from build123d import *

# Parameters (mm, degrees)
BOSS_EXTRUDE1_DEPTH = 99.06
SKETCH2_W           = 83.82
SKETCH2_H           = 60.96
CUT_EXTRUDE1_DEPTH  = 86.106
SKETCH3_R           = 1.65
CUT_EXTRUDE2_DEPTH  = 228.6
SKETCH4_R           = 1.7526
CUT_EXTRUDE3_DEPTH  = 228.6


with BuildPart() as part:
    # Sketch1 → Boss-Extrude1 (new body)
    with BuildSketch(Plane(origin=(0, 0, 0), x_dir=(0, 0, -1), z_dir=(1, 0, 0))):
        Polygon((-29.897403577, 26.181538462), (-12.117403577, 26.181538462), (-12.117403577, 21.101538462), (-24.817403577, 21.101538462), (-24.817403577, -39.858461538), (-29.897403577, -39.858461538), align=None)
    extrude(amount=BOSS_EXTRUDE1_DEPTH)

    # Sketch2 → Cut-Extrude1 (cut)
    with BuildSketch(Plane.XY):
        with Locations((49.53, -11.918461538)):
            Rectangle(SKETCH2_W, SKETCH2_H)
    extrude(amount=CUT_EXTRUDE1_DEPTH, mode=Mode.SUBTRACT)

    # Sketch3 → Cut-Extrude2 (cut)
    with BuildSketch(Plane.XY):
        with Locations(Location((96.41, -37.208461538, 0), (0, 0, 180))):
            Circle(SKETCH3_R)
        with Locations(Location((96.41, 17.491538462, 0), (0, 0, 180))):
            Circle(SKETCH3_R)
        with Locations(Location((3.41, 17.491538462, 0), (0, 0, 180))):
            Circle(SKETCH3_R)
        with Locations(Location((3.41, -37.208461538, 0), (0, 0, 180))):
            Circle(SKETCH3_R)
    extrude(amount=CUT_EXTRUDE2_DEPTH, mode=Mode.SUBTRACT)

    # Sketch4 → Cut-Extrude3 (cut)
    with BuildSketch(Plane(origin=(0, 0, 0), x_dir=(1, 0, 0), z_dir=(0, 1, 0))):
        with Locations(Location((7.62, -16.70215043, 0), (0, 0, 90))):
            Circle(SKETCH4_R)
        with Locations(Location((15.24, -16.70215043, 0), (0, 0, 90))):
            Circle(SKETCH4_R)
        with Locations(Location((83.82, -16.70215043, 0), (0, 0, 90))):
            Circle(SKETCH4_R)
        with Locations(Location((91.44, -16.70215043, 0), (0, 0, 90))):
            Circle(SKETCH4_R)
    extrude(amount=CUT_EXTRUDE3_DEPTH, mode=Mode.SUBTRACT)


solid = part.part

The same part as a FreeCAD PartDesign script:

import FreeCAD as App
import Part
import Sketcher
from FreeCAD import Vector
Q = App.Units.Quantity


def add_polygon(sketch, points):
    """Adds a closed chain of lines whose ends are joined by coincident constraints."""
    first, n = sketch.GeometryCount, len(points)
    for a, b in zip(points, points[1:] + points[:1]):
        sketch.addGeometry(Part.LineSegment(App.Vector(*a, 0), App.Vector(*b, 0)), False)
    for i in range(n):
        sketch.addConstraint(Sketcher.Constraint("Coincident", first + i, 2, first + (i + 1) % n, 1))

doc = App.newDocument("Part")
body = doc.addObject("PartDesign::Body", "Body")

sketch1 = body.newObject("Sketcher::SketchObject", "Sketch")
sketch1.AttachmentSupport = (doc.getObject("YZ_Plane"), [""])
sketch1.MapMode = "FlatFace"
add_polygon(sketch1, [(26, 12), (26, 30), (-40, 30), (-40, 25), (21, 25), (21, 12)])
sketch1.addConstraint([
    Sketcher.Constraint("Vertical", 0),
    Sketcher.Constraint("Horizontal", 1),
    Sketcher.Constraint("Vertical", 2),
    Sketcher.Constraint("Horizontal", 3),
    Sketcher.Constraint("Vertical", 4),
    Sketcher.Constraint("Horizontal", 5),
    Sketcher.Constraint("Equal", 5, 2),
    Sketcher.Constraint("DistanceX", 1, 2, 1, 1, Q("2.6 in")),
    Sketcher.Constraint("DistanceX", 3, 1, 3, 2, Q("2.4 in")),
    Sketcher.Constraint("DistanceY", 0, 1, 0, 2, Q("0.7 in")),
    Sketcher.Constraint("DistanceX", -1, 1, 0, 2, 26.181538),
    Sketcher.Constraint("DistanceY", -1, 1, 0, 2, 29.897404),
])
pad1 = body.newObject("PartDesign::Pad", "Pad")
pad1.Profile = sketch1
pad1.Length = Q("3.9 in")

sketch2 = body.newObject("Sketcher::SketchObject", "Sketch001")
sketch2.AttachmentSupport = (doc.getObject("XY_Plane"), [""])
sketch2.MapMode = "FlatFace"
add_polygon(sketch2, [(8, 19), (8, -42), (91, -42), (91, 19)])
sketch2.addConstraint([
    Sketcher.Constraint("Vertical", 0),
    Sketcher.Constraint("Horizontal", 1),
    Sketcher.Constraint("Vertical", 2),
    Sketcher.Constraint("Horizontal", 3),
    Sketcher.Constraint("DistanceX", 1, 1, 1, 2, Q("3.3 in")),
    Sketcher.Constraint("DistanceY", 0, 2, 0, 1, Q("2.4 in")),
    Sketcher.Constraint("DistanceX", -1, 1, 0, 2, Q("0.3 in")),
    Sketcher.Constraint("DistanceY", 0, 2, -1, 1, 42.398462),
])
pocket1 = body.newObject("PartDesign::Pocket", "Pocket")
pocket1.Profile = sketch2
pocket1.Length = Q("3.39 in")
pocket1.Reversed = True

sketch3 = body.newObject("Sketcher::SketchObject", "Sketch002")
sketch3.AttachmentSupport = (doc.getObject("XY_Plane"), [""])
sketch3.MapMode = "FlatFace"
sketch3.addGeometry([
    Part.Circle(Vector(96.4, -37.2, 0), Vector(0, 0, 1), 1.6),
    Part.Circle(Vector(96.4, 17.5, 0), Vector(0, 0, 1), 1.6),
    Part.Circle(Vector(3.4, 17.5, 0), Vector(0, 0, 1), 1.6),
    Part.Circle(Vector(3.4, -37.2, 0), Vector(0, 0, 1), 1.6),
], False)
sketch3.addConstraint([
    Sketcher.Constraint("Equal", 0, 1),
    Sketcher.Constraint("Equal", 1, 2),
    Sketcher.Constraint("Equal", 2, 3),
    Sketcher.Constraint("Horizontal", 1, 3, 2, 3),
    Sketcher.Constraint("Horizontal", 0, 3, 3, 3),
    Sketcher.Constraint("Vertical", 0, 3, 1, 3),
    Sketcher.Constraint("Vertical", 2, 3, 3, 3),
    Sketcher.Constraint("Diameter", 0, 3.3),
    Sketcher.Constraint("DistanceY", 0, 3, -1, 1, Q("1.4649001 in")),
    Sketcher.Constraint("DistanceX", -1, 1, 0, 3, 96.41),
    Sketcher.Constraint("DistanceX", -1, 1, 2, 3, 3.41),
    Sketcher.Constraint("DistanceY", 0, 3, 1, 3, 54.7),
])
pocket2 = body.newObject("PartDesign::Pocket", "Pocket001")
pocket2.Profile = sketch3
pocket2.Length = Q("9 in")
pocket2.Reversed = True

sketch4 = body.newObject("Sketcher::SketchObject", "Sketch003")
sketch4.AttachmentSupport = (doc.getObject("XZ_Plane"), [""])
sketch4.MapMode = "FlatFace"
sketch4.addGeometry([
    Part.Circle(Vector(7.6, 16.7, 0), Vector(0, 0, 1), 1.8),
    Part.Circle(Vector(15.2, 16.7, 0), Vector(0, 0, 1), 1.8),
    Part.Circle(Vector(83.8, 16.7, 0), Vector(0, 0, 1), 1.8),
    Part.Circle(Vector(91.4, 16.7, 0), Vector(0, 0, 1), 1.8),
], False)
sketch4.addConstraint([
    Sketcher.Constraint("Equal", 0, 1),
    Sketcher.Constraint("Equal", 1, 2),
    Sketcher.Constraint("Equal", 2, 3),
    Sketcher.Constraint("Horizontal", 0, 3, 1, 3),
    Sketcher.Constraint("Horizontal", 1, 3, 2, 3),
    Sketcher.Constraint("Horizontal", 2, 3, 3, 3),
    Sketcher.Constraint("Diameter", 0, Q("0.138 in")),
    Sketcher.Constraint("DistanceX", 0, 3, 2, 3, Q("3 in")),
    Sketcher.Constraint("DistanceX", 1, 3, 3, 3, Q("3 in")),
    Sketcher.Constraint("DistanceX", -1, 1, 0, 3, Q("0.3 in")),
    Sketcher.Constraint("DistanceX", -1, 1, 1, 3, Q("0.6 in")),
    Sketcher.Constraint("DistanceY", -1, 1, 0, 3, 16.70215),
])
pocket3 = body.newObject("PartDesign::Pocket", "Pocket002")
pocket3.Profile = sketch4
pocket3.Length = Q("9 in")

doc.recompute()
